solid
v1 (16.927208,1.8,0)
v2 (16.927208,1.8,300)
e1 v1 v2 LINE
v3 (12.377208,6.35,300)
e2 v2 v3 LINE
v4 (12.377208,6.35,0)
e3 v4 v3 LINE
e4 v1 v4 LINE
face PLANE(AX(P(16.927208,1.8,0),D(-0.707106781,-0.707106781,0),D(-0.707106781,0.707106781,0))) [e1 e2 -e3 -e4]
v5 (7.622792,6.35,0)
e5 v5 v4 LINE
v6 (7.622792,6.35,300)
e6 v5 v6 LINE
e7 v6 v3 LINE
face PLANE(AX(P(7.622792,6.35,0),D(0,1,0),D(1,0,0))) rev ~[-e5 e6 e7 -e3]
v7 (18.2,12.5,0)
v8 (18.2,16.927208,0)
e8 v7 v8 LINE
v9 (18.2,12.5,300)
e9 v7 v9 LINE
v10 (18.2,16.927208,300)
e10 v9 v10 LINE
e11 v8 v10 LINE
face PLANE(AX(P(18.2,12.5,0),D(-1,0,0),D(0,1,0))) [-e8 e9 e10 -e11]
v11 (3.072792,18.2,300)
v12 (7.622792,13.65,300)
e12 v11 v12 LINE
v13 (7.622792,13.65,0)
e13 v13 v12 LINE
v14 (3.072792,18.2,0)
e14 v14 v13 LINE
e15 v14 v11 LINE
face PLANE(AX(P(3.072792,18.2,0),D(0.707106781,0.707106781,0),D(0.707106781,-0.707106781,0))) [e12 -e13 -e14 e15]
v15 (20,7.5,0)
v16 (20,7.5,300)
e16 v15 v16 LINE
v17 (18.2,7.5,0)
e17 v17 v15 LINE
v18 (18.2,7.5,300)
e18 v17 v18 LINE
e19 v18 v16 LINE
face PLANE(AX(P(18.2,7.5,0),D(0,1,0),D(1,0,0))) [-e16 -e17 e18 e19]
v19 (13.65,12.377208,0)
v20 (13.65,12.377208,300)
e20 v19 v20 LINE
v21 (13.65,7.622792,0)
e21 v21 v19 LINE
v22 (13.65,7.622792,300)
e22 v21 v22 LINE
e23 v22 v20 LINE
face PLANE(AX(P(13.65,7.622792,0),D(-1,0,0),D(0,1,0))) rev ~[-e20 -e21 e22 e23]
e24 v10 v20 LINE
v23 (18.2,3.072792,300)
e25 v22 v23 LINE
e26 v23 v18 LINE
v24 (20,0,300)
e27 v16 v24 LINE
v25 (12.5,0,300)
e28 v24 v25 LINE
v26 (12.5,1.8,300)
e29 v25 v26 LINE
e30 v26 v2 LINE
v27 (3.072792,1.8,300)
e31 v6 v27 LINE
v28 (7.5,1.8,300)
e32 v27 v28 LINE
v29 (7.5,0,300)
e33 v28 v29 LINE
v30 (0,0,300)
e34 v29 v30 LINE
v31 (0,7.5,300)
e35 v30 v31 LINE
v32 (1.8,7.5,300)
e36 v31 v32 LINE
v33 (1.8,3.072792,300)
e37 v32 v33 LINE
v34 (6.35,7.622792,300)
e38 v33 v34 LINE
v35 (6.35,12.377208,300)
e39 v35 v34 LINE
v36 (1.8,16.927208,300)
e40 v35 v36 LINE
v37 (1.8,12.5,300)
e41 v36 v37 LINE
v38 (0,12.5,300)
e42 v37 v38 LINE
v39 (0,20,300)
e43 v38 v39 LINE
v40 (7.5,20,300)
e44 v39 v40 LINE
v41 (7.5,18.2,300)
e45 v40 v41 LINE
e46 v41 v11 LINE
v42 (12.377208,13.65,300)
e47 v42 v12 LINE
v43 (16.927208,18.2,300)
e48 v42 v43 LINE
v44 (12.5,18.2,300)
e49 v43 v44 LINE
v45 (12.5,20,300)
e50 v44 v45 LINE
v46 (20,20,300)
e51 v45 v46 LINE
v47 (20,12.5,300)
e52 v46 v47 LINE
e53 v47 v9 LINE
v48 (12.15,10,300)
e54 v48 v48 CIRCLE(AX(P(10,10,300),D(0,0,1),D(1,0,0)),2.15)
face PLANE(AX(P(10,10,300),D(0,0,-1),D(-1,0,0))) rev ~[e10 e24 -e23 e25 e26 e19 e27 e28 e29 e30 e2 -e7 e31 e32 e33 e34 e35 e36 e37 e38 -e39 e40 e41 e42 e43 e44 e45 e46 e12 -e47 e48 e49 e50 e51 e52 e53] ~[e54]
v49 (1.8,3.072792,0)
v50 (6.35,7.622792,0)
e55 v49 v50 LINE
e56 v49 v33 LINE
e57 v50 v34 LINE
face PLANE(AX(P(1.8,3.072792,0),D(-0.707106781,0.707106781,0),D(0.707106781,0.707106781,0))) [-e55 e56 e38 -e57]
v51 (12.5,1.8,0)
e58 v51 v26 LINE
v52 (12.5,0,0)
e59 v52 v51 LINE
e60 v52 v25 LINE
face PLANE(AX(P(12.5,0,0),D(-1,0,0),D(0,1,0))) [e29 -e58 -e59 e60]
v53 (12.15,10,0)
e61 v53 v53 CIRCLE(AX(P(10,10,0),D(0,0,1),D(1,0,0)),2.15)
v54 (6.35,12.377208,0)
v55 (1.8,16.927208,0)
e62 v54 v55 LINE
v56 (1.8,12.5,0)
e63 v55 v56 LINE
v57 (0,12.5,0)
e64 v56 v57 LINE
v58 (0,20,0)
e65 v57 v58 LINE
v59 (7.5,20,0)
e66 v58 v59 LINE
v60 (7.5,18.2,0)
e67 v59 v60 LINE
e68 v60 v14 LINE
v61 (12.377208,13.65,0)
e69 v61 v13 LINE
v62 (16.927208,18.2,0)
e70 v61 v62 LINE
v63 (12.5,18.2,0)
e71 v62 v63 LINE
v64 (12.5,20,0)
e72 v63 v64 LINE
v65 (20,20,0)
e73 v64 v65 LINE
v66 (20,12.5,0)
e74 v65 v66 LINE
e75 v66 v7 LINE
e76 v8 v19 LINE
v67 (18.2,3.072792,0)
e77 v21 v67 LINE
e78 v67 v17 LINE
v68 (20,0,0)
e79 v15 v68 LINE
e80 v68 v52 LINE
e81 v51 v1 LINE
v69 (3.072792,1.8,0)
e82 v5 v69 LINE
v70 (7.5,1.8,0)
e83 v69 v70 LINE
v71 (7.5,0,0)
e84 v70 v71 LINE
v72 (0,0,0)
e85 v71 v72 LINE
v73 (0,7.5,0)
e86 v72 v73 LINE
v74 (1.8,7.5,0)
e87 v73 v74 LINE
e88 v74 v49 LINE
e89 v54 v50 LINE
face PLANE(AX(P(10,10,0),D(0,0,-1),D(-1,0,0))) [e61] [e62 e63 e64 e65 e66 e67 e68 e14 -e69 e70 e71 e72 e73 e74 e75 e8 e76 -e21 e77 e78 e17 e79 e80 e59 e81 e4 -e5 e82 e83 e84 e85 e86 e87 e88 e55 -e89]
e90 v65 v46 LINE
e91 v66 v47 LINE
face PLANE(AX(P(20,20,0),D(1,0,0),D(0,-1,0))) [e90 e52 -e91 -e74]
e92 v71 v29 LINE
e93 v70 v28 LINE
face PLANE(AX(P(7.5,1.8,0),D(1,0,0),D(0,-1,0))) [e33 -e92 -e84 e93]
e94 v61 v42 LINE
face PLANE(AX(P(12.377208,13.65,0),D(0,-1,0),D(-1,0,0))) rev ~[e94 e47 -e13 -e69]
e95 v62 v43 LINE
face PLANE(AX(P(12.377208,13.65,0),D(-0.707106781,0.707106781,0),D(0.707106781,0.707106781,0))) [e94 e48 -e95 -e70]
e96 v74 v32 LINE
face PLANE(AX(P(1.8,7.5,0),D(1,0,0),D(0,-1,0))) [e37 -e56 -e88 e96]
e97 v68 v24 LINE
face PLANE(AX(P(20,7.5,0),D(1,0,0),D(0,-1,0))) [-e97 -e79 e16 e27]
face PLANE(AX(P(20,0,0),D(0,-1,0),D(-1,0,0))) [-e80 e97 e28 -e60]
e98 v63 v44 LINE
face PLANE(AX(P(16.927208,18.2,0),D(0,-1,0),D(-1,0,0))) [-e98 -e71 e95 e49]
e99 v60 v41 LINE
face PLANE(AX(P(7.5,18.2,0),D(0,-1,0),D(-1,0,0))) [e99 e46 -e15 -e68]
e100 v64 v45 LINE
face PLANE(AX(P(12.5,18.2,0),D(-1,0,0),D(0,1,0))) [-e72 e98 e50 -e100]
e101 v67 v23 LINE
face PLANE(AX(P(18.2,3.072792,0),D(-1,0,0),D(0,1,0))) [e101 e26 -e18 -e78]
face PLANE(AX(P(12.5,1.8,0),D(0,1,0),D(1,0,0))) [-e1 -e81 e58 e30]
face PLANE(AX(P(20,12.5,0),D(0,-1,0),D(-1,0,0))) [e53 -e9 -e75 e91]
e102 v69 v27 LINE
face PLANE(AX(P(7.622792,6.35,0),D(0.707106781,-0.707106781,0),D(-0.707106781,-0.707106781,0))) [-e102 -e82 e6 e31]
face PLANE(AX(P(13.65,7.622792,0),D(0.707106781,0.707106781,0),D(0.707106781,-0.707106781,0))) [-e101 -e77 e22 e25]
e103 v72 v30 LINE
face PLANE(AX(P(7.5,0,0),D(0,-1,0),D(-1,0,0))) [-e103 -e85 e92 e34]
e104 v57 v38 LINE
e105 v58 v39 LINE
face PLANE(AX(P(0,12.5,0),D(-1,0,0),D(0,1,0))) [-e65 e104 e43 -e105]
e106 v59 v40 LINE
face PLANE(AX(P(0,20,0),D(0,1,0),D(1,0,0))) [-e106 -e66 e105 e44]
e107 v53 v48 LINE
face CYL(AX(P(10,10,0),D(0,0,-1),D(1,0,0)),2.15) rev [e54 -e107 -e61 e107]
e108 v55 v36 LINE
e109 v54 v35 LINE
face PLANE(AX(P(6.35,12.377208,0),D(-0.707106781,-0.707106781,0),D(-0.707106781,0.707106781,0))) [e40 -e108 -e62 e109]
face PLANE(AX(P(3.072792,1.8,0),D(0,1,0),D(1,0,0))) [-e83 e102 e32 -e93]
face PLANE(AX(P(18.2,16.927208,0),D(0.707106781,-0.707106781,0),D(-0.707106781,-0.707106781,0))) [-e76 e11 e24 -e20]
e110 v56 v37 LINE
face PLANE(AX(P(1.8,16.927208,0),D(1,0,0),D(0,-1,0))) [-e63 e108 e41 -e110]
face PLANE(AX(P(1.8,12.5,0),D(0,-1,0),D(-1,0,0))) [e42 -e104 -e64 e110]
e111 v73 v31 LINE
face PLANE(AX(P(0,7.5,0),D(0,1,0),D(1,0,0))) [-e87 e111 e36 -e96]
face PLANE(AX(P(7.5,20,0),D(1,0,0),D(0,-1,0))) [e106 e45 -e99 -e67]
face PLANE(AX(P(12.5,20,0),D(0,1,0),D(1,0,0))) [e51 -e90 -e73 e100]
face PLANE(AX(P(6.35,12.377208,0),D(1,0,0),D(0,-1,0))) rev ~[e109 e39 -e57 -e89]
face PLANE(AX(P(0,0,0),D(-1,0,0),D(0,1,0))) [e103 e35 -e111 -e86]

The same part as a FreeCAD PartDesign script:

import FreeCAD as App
import Part
import Sketcher
from FreeCAD import Vector
Q = App.Units.Quantity


def add_polygon(sketch, points):
    """Adds a closed chain of lines whose ends are joined by coincident constraints."""
    first, n = sketch.GeometryCount, len(points)
    for a, b in zip(points, points[1:] + points[:1]):
        sketch.addGeometry(Part.LineSegment(App.Vector(*a, 0), App.Vector(*b, 0)), False)
    for i in range(n):
        sketch.addConstraint(Sketcher.Constraint("Coincident", first + i, 2, first + (i + 1) % n, 1))

doc = App.newDocument("Part")
body = doc.addObject("PartDesign::Body", "Body")

# Sketch on XY plane
sketch1 = body.newObject("Sketcher::SketchObject", "Sketch")
sketch1.AttachmentSupport = (doc.getObject("XY_Plane"), [""])
sketch1.MapMode = "FlatFace"
add_polygon(sketch1, [(18.2, 12.5), (20, 12.5), (20, 20), (12.5, 20), (12.5, 18.2), (16.9, 18.2), (12.4, 13.7), (7.6, 13.7), (3.1, 18.2), (7.5, 18.2), (7.5, 20), (0, 20), (0, 12.5), (1.8, 12.5), (1.8, 16.9), (6.3, 12.4), (6.3, 7.6), (1.8, 3.1), (1.8, 7.5), (0, 7.5), (0, 0), (7.5, 0), (7.5, 1.8), (3.1, 1.8), (7.6, 6.3), (12.4, 6.3), (16.9, 1.8), (12.5, 1.8), (12.5, 0), (20, 0), (20, 7.5), (18.2, 7.5), (18.2, 3.1), (13.7, 7.6), (13.7, 12.4), (18.2, 16.9)])  # lines 0-35
sketch1.addGeometry(Part.Circle(Vector(10, 10, 0), Vector(0, 0, 1), 2.1), False)  # 36
sketch1.addConstraint([
    Sketcher.Constraint("Horizontal", 0),
    Sketcher.Constraint("Vertical", 1),
    Sketcher.Constraint("Horizontal", 2),
    Sketcher.Constraint("Vertical", 3),
    Sketcher.Constraint("Horizontal", 4),
    Sketcher.Constraint("Horizontal", 6),
    Sketcher.Constraint("Horizontal", 8),
    Sketcher.Constraint("Vertical", 9),
    Sketcher.Constraint("Horizontal", 10),
    Sketcher.Constraint("Vertical", 11),
    Sketcher.Constraint("Horizontal", 12),
    Sketcher.Constraint("Vertical", 13),
    Sketcher.Constraint("Vertical", 15),
    Sketcher.Constraint("Vertical", 17),
    Sketcher.Constraint("Horizontal", 18),
    Sketcher.Constraint("Vertical", 19),
    Sketcher.Constraint("Horizontal", 20),
    Sketcher.Constraint("Vertical", 21),
    Sketcher.Constraint("Horizontal", 22),
    Sketcher.Constraint("Horizontal", 24),
    Sketcher.Constraint("Horizontal", 26),
    Sketcher.Constraint("Vertical", 27),
    Sketcher.Constraint("Horizontal", 28),
    Sketcher.Constraint("Vertical", 29),
    Sketcher.Constraint("Horizontal", 30),
    Sketcher.Constraint("Vertical", 31),
    Sketcher.Constraint("Vertical", 33),
    Sketcher.Constraint("Vertical", 35),
    Sketcher.Constraint("Coincident", 19, 2, -1, 1),
    Sketcher.Constraint("PointOnObject", 10, 2, -2),
    Sketcher.Constraint("PointOnObject", 27, 2, -1),
    Sketcher.Constraint("Perpendicular", 5, 7),
    Sketcher.Constraint("Parallel", 7, 14),
    Sketcher.Constraint("Perpendicular", 14, 16),
    Sketcher.Constraint("Parallel", 16, 23),
    Sketcher.Constraint("Perpendicular", 23, 25),
    Sketcher.Constraint("Parallel", 25, 32),
    Sketcher.Constraint("Perpendicular", 32, 34),
    Sketcher.Constraint("Horizontal", 4, 2, 7, 2),
    Sketcher.Constraint("Horizontal", 2, 2, 9, 2),
    Sketcher.Constraint("Horizontal", 0, 2, 11, 2),
    Sketcher.Constraint("Horizontal", 22, 2, 25, 2),
    Sketcher.Constraint("Horizontal", 18, 2, 29, 2),
    Sketcher.Constraint("Horizontal", 16, 2, 31, 2),
    Sketcher.Constraint("Horizontal", 15, 2, 32, 2),
    Sketcher.Constraint("Horizontal", 14, 2, 33, 2),
    Sketcher.Constraint("Horizontal", 13, 2, 34, 2),
    Sketcher.Constraint("Vertical", 13, 2, 16, 2),
    Sketcher.Constraint("Vertical", 9, 2, 20, 2),
    Sketcher.Constraint("Vertical", 7, 2, 22, 2),
    Sketcher.Constraint("Vertical", 6, 2, 23, 2),
    Sketcher.Constraint("Vertical", 5, 2, 24, 2),
    Sketcher.Constraint("Vertical", 4, 2, 25, 2),
    Sketcher.Constraint("Vertical", 3, 2, 26, 2),
    Sketcher.Constraint("Vertical", 1, 2, 28, 2),
    Sketcher.Constraint("Equal", 4, 8),
    Sketcher.Constraint("Equal", 2, 10),
    Sketcher.Constraint("Equal", 0, 12),
    Sketcher.Constraint("Equal", 28, 1),
    Sketcher.Constraint("Equal", 30, 3),
    Sketcher.Constraint("Equal", 26, 13),
    Sketcher.Constraint("Equal", 24, 15),
    Sketcher.Constraint("Equal", 13, 17),
    Sketcher.Constraint("Equal", 11, 19),
    Sketcher.Constraint("Equal", 9, 21),
    Sketcher.Constraint("Equal", 7, 14),
    Sketcher.Constraint("Diameter", 36, Q("4.3 mm")),
    Sketcher.Constraint("DistanceX", 0, 1, 0, 2, Q("1.8 mm")),
    Sketcher.Constraint("DistanceX", 2, 2, 2, 1, Q("7.5 mm")),
    Sketcher.Constraint("DistanceX", -1, 1, 36, 3, Q("10 mm")),
    Sketcher.Constraint("DistanceY", -1, 1, 36, 3, Q("10 mm")),
    Sketcher.Constraint("DistanceX", -1, 1, 0, 2, Q("20 mm")),
    Sketcher.Constraint("DistanceY", 24, 2, 5, 2, Q("7.3 mm")),
    Sketcher.Constraint("DistanceX", 4, 1, 4, 2, Q("4.427208 mm")),
])
pad1 = body.newObject("PartDesign::Pad", "Pad")
pad1.Profile = sketch1
pad1.Length = 300

doc.recompute()
